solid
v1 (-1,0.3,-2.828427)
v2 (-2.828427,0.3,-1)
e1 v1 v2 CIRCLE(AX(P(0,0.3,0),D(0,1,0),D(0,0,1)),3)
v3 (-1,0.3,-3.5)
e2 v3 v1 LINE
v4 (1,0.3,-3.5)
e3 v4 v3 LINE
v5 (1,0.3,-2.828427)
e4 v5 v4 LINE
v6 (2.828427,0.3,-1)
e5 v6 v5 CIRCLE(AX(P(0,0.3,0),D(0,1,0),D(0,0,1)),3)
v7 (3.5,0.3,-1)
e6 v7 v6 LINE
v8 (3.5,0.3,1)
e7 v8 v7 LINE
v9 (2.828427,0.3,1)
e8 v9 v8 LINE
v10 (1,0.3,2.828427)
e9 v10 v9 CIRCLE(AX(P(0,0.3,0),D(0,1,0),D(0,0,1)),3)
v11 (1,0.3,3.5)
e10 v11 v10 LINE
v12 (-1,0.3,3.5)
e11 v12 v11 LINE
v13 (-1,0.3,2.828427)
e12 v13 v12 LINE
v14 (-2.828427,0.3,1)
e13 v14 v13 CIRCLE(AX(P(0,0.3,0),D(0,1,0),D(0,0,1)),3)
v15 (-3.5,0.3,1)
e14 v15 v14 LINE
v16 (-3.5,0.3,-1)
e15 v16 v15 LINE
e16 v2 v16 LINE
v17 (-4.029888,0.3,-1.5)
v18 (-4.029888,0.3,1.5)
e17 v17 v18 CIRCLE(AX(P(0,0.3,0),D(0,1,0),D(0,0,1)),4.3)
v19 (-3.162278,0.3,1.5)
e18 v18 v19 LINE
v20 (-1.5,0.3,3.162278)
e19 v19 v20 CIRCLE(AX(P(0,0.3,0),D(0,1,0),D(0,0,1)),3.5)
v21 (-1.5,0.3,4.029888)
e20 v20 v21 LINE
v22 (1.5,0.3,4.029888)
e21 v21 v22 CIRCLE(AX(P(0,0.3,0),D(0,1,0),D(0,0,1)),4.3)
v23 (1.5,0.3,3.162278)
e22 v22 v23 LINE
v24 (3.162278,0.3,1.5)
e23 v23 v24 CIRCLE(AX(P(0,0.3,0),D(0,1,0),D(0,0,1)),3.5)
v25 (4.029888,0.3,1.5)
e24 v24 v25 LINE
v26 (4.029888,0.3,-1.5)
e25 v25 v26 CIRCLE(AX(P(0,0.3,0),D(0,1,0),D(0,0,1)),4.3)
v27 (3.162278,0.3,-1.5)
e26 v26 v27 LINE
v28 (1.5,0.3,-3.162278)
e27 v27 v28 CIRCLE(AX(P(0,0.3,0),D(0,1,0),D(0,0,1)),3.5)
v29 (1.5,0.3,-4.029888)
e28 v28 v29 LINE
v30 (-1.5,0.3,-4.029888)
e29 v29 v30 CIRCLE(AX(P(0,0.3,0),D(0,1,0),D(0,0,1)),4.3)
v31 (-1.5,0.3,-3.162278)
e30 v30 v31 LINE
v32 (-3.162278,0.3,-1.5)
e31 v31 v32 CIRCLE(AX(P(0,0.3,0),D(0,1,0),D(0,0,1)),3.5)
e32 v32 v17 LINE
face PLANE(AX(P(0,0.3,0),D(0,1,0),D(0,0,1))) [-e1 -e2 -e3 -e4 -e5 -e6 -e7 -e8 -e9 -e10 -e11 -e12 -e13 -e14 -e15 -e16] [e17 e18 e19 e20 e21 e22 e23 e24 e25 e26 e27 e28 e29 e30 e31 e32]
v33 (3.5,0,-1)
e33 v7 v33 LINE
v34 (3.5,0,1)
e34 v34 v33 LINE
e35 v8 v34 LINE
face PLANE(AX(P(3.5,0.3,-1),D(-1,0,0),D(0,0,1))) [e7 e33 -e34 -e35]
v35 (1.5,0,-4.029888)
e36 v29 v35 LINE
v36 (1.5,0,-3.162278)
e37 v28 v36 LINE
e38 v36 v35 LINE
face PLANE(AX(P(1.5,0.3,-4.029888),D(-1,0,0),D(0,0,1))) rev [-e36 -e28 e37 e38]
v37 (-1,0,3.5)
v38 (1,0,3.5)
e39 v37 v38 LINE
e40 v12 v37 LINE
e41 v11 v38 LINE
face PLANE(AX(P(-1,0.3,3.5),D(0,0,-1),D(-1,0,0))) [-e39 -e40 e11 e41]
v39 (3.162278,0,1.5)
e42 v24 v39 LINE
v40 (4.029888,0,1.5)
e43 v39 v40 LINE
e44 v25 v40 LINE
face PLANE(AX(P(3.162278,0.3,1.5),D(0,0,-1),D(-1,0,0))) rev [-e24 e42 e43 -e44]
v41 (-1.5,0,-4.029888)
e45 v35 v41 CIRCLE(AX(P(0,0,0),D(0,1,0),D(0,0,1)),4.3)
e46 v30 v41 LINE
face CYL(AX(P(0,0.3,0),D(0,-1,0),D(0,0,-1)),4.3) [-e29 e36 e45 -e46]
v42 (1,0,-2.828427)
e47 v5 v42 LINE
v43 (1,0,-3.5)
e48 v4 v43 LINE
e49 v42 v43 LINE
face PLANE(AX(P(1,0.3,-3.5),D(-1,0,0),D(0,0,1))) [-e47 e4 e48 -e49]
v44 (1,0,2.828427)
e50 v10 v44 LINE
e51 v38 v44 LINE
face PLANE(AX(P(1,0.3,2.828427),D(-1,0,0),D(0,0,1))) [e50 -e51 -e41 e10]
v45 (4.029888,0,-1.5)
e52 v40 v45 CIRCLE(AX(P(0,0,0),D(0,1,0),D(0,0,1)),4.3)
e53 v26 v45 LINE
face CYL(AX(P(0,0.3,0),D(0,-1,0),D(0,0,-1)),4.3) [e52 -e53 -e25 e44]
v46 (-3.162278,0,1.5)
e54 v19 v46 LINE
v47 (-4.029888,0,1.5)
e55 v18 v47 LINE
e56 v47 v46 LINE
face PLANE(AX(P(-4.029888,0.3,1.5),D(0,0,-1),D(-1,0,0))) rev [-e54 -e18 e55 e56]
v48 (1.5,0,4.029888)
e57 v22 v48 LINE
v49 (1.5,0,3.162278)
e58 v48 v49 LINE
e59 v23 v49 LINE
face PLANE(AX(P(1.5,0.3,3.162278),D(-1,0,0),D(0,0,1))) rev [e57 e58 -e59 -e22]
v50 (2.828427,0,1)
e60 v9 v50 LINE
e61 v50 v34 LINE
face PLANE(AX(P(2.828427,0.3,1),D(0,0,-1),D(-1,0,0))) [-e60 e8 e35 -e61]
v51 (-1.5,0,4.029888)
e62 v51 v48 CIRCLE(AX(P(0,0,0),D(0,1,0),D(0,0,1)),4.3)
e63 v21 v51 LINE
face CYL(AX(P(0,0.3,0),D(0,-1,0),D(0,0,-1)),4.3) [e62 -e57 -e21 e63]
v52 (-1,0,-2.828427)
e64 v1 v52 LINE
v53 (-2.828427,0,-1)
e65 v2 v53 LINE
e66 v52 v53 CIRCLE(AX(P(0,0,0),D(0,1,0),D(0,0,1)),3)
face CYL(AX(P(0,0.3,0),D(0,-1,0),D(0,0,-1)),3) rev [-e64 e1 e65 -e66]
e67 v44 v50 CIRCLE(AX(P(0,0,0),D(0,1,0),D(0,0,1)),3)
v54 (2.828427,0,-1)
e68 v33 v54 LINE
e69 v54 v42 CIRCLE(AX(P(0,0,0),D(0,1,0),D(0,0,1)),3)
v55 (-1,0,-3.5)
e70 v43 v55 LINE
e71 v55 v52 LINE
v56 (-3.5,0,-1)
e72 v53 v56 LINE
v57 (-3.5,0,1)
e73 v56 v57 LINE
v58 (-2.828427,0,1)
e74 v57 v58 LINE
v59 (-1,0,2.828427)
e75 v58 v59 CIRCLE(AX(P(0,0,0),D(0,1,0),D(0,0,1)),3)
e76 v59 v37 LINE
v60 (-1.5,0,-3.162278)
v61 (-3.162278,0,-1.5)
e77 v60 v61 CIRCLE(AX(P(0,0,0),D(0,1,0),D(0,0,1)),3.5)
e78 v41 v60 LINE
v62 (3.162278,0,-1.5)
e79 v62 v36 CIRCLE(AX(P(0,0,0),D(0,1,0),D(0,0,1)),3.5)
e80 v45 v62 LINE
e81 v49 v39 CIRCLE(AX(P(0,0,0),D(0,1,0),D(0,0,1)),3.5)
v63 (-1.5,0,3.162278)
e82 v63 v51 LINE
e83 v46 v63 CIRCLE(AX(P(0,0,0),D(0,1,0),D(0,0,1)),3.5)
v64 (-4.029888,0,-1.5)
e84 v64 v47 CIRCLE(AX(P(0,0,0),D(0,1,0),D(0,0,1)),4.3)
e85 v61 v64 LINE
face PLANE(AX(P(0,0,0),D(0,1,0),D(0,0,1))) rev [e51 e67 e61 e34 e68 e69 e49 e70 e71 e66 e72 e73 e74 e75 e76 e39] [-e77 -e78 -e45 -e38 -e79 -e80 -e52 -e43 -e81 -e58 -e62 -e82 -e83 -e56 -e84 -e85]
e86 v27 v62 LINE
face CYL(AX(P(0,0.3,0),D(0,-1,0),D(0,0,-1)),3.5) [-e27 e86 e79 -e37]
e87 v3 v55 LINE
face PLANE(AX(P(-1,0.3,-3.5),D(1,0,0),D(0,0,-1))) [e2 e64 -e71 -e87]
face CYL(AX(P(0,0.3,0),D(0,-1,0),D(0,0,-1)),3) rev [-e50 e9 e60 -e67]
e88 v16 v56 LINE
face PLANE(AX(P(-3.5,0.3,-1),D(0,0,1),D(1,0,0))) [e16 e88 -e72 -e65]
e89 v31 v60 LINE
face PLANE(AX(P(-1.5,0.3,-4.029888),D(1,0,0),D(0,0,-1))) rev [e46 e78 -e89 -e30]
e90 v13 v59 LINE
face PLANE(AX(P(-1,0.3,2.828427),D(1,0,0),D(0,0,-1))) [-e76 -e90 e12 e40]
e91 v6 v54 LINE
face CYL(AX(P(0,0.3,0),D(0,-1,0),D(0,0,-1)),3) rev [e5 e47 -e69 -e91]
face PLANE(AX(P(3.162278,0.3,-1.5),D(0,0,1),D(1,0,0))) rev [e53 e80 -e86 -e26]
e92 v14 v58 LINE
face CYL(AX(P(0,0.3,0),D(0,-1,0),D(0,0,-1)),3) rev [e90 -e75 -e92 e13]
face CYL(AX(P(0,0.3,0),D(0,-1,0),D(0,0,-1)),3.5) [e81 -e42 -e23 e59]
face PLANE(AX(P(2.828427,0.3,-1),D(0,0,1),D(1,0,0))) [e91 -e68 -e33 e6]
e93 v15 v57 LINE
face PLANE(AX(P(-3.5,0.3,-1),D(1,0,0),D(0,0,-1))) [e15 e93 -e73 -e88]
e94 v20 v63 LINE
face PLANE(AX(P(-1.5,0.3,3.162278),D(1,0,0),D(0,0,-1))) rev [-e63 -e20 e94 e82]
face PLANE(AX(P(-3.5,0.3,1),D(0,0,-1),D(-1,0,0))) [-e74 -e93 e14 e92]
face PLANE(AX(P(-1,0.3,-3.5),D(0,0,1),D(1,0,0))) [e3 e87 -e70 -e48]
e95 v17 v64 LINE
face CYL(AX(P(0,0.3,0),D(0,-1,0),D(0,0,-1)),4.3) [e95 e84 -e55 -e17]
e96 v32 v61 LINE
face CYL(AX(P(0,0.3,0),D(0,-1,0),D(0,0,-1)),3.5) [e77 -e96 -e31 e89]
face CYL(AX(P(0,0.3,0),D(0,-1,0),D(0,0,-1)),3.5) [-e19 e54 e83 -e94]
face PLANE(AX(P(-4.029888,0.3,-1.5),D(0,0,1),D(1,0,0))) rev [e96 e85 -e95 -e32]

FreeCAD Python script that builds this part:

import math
import FreeCAD as App
import Part
import Sketcher

V = App.Vector

doc = App.newDocument("Part")
body = doc.addObject("PartDesign::Body", "Body")

# Sketch on XZ plane
sketch1 = body.newObject("Sketcher::SketchObject", "Sketch")
sketch1.AttachmentSupport = (doc.getObject("XZ_Plane"), [""])
sketch1.MapMode = "FlatFace"
sketch1.addGeometry([
    Part.LineSegment(V(-3.162278, -1.5, 0), V(-4.029888, -1.5, 0)),  # 0
    Part.ArcOfCircle(Part.Circle(V(0, 0, 0), V(0, 0, 1), 4.3), math.radians(159.58379), math.radians(200.41621)),  # 1
    Part.LineSegment(V(-4.029888, 1.5, 0), V(-3.162278, 1.5, 0)),  # 2
    Part.ArcOfCircle(Part.Circle(V(0, 0, 0), V(0, 0, 1), 3.5), math.radians(115.376934), math.radians(154.623066)),  # 3
    Part.LineSegment(V(-1.5, 3.162278, 0), V(-1.5, 4.029888, 0)),  # 4
    Part.ArcOfCircle(Part.Circle(V(0, 0, 0), V(0, 0, 1), 4.3), math.radians(69.58379), math.radians(110.41621)),  # 5
    Part.LineSegment(V(1.5, 4.029888, 0), V(1.5, 3.162278, 0)),  # 6
    Part.ArcOfCircle(Part.Circle(V(0, 0, 0), V(0, 0, 1), 3.5), math.radians(25.376934), math.radians(64.623066)),  # 7
    Part.LineSegment(V(3.162278, 1.5, 0), V(4.029888, 1.5, 0)),  # 8
    Part.ArcOfCircle(Part.Circle(V(0, 0, 0), V(0, 0, 1), 4.3), math.radians(-20.41621), math.radians(20.41621)),  # 9
    Part.LineSegment(V(4.029888, -1.5, 0), V(3.162278, -1.5, 0)),  # 10
    Part.ArcOfCircle(Part.Circle(V(0, 0, 0), V(0, 0, 1), 3.5), math.radians(-64.623066), math.radians(-25.376934)),  # 11
    Part.LineSegment(V(1.5, -3.162278, 0), V(1.5, -4.029888, 0)),  # 12
    Part.ArcOfCircle(Part.Circle(V(0, 0, 0), V(0, 0, 1), 4.3), math.radians(-110.41621), math.radians(-69.58379)),  # 13
    Part.LineSegment(V(-1.5, -4.029888, 0), V(-1.5, -3.162278, 0)),  # 14
    Part.ArcOfCircle(Part.Circle(V(0, 0, 0), V(0, 0, 1), 3.5), math.radians(-154.623066), math.radians(-115.376934)),  # 15
    Part.LineSegment(V(-3.5, -1, 0), V(-2.828427, -1, 0)),  # 16
    Part.ArcOfCircle(Part.Circle(V(0, 0, 0), V(0, 0, 1), 3), math.radians(-160.528779), math.radians(-109.471221)),  # 17
    Part.LineSegment(V(-1, -2.828427, 0), V(-1, -3.5, 0)),  # 18
    Part.LineSegment(V(-1, -3.5, 0), V(1, -3.5, 0)),  # 19
    Part.LineSegment(V(1, -3.5, 0), V(1, -2.828427, 0)),  # 20
    Part.ArcOfCircle(Part.Circle(V(0, 0, 0), V(0, 0, 1), 3), math.radians(-70.528779), math.radians(-19.471221)),  # 21
    Part.LineSegment(V(2.828427, -1, 0), V(3.5, -1, 0)),  # 22
    Part.LineSegment(V(3.5, -1, 0), V(3.5, 1, 0)),  # 23
    Part.LineSegment(V(3.5, 1, 0), V(2.828427, 1, 0)),  # 24
    Part.ArcOfCircle(Part.Circle(V(0, 0, 0), V(0, 0, 1), 3), math.radians(19.471221), math.radians(70.528779)),  # 25
    Part.LineSegment(V(1, 2.828427, 0), V(1, 3.5, 0)),  # 26
    Part.LineSegment(V(1, 3.5, 0), V(-1, 3.5, 0)),  # 27
    Part.LineSegment(V(-1, 3.5, 0), V(-1, 2.828427, 0)),  # 28
    Part.ArcOfCircle(Part.Circle(V(0, 0, 0), V(0, 0, 1), 3), math.radians(109.471221), math.radians(160.528779)),  # 29
    Part.LineSegment(V(-2.828427, 1, 0), V(-3.5, 1, 0)),  # 30
    Part.LineSegment(V(-3.5, 1, 0), V(-3.5, -1, 0)),  # 31
], False)
sketch1.addConstraint([
    Sketcher.Constraint("Coincident", 0, 2, 1, 2),
    Sketcher.Constraint("Coincident", 1, 1, 2, 1),
    Sketcher.Constraint("Coincident", 2, 2, 3, 2),
    Sketcher.Constraint("Coincident", 3, 1, 4, 1),
    Sketcher.Constraint("Coincident", 4, 2, 5, 2),
    Sketcher.Constraint("Coincident", 5, 1, 6, 1),
    Sketcher.Constraint("Coincident", 6, 2, 7, 2),
    Sketcher.Constraint("Coincident", 7, 1, 8, 1),
    Sketcher.Constraint("Coincident", 8, 2, 9, 2),
    Sketcher.Constraint("Coincident", 9, 1, 10, 1),
    Sketcher.Constraint("Coincident", 10, 2, 11, 2),
    Sketcher.Constraint("Coincident", 11, 1, 12, 1),
    Sketcher.Constraint("Coincident", 12, 2, 13, 2),
    Sketcher.Constraint("Coincident", 13, 1, 14, 1),
    Sketcher.Constraint("Coincident", 14, 2, 15, 2),
    Sketcher.Constraint("Coincident", 15, 1, 0, 1),
    Sketcher.Constraint("Coincident", 16, 2, 17, 1),
    Sketcher.Constraint("Coincident", 17, 2, 18, 1),
    Sketcher.Constraint("Coincident", 18, 2, 19, 1),
    Sketcher.Constraint("Coincident", 19, 2, 20, 1),
    Sketcher.Constraint("Coincident", 20, 2, 21, 1),
    Sketcher.Constraint("Coincident", 21, 2, 22, 1),
    Sketcher.Constraint("Coincident", 22, 2, 23, 1),
    Sketcher.Constraint("Coincident", 23, 2, 24, 1),
    Sketcher.Constraint("Coincident", 24, 2, 25, 1),
    Sketcher.Constraint("Coincident", 25, 2, 26, 1),
    Sketcher.Constraint("Coincident", 26, 2, 27, 1),
    Sketcher.Constraint("Coincident", 27, 2, 28, 1),
    Sketcher.Constraint("Coincident", 28, 2, 29, 1),
    Sketcher.Constraint("Coincident", 29, 2, 30, 1),
    Sketcher.Constraint("Coincident", 30, 2, 31, 1),
    Sketcher.Constraint("Coincident", 31, 2, 16, 1),
    Sketcher.Constraint("Horizontal", 0),
    Sketcher.Constraint("Horizontal", 2),
    Sketcher.Constraint("Vertical", 4),
    Sketcher.Constraint("Vertical", 6),
    Sketcher.Constraint("Horizontal", 8),
    Sketcher.Constraint("Horizontal", 10),
    Sketcher.Constraint("Vertical", 12),
    Sketcher.Constraint("Vertical", 14),
    Sketcher.Constraint("Horizontal", 16),
    Sketcher.Constraint("Vertical", 18),
    Sketcher.Constraint("Horizontal", 19),
    Sketcher.Constraint("Vertical", 20),
    Sketcher.Constraint("Horizontal", 22),
    Sketcher.Constraint("Vertical", 23),
    Sketcher.Constraint("Horizontal", 24),
    Sketcher.Constraint("Vertical", 26),
    Sketcher.Constraint("Horizontal", 27),
    Sketcher.Constraint("Vertical", 28),
    Sketcher.Constraint("Horizontal", 30),
    Sketcher.Constraint("Vertical", 31),
    Sketcher.Constraint("Coincident", 1, 3, -1, 1),
    Sketcher.Constraint("Coincident", 3, 3, -1, 1),
    Sketcher.Constraint("Coincident", 5, 3, -1, 1),
    Sketcher.Constraint("Coincident", 7, 3, -1, 1),
    Sketcher.Constraint("Coincident", 9, 3, -1, 1),
    Sketcher.Constraint("Coincident", 11, 3, -1, 1),
    Sketcher.Constraint("Coincident", 13, 3, -1, 1),
    Sketcher.Constraint("Coincident", 15, 3, -1, 1),
    Sketcher.Constraint("Coincident", 17, 3, -1, 1),
    Sketcher.Constraint("Coincident", 21, 3, -1, 1),
    Sketcher.Constraint("Coincident", 25, 3, -1, 1),
    Sketcher.Constraint("Coincident", 29, 3, -1, 1),
    Sketcher.Constraint("Equal", 1, 5),
    Sketcher.Constraint("Equal", 3, 7),
    Sketcher.Constraint("Equal", 5, 9),
    Sketcher.Constraint("Equal", 7, 11),
    Sketcher.Constraint("Equal", 9, 13),
    Sketcher.Constraint("Equal", 11, 15),
    Sketcher.Constraint("Equal", 17, 21),
    Sketcher.Constraint("Equal", 21, 25),
    Sketcher.Constraint("Equal", 25, 29),
    Sketcher.Constraint("Symmetric", 18, 2, 26, 2, -1, 1),
    Sketcher.Constraint("Symmetric", 22, 2, 30, 2, -1, 1),
    Sketcher.Constraint("Horizontal", 4, 2, 5, 1),
    Sketcher.Constraint("Horizontal", 2, 2, 7, 1),
    Sketcher.Constraint("Horizontal", 0, 2, 9, 1),
    Sketcher.Constraint("Horizontal", 12, 2, 13, 1),
    Sketcher.Constraint("Horizontal", 17, 2, 20, 2),
    Sketcher.Constraint("Horizontal", 16, 2, 21, 2),
    Sketcher.Constraint("Horizontal", 25, 2, 28, 2),
    Sketcher.Constraint("Horizontal", 24, 2, 29, 2),
    Sketcher.Constraint("Vertical", 0, 2, 1, 1),
    Sketcher.Constraint("Vertical", 6, 2, 11, 1),
    Sketcher.Constraint("Equal", 10, 4),
    Sketcher.Constraint("Equal", 30, 18),
    Sketcher.Constraint("Equal", 27, 23),
    Sketcher.Constraint("Radius", 17, 3.0),
    Sketcher.Constraint("Radius", 1, 4.3),
    Sketcher.Constraint("Radius", 3, 3.5),
    Sketcher.Constraint("DistanceX", 19, 1, 19, 2, 2.0),
    Sketcher.Constraint("DistanceY", 0, 2, 1, 1, 3.0),
    Sketcher.Constraint("DistanceY", 18, 2, -1, 1, 3.5),
])
pad1 = body.newObject("PartDesign::Pad", "Pad")
pad1.Profile = sketch1
pad1.Length = 0.3
pad1.Reversed = True

doc.recompute()
